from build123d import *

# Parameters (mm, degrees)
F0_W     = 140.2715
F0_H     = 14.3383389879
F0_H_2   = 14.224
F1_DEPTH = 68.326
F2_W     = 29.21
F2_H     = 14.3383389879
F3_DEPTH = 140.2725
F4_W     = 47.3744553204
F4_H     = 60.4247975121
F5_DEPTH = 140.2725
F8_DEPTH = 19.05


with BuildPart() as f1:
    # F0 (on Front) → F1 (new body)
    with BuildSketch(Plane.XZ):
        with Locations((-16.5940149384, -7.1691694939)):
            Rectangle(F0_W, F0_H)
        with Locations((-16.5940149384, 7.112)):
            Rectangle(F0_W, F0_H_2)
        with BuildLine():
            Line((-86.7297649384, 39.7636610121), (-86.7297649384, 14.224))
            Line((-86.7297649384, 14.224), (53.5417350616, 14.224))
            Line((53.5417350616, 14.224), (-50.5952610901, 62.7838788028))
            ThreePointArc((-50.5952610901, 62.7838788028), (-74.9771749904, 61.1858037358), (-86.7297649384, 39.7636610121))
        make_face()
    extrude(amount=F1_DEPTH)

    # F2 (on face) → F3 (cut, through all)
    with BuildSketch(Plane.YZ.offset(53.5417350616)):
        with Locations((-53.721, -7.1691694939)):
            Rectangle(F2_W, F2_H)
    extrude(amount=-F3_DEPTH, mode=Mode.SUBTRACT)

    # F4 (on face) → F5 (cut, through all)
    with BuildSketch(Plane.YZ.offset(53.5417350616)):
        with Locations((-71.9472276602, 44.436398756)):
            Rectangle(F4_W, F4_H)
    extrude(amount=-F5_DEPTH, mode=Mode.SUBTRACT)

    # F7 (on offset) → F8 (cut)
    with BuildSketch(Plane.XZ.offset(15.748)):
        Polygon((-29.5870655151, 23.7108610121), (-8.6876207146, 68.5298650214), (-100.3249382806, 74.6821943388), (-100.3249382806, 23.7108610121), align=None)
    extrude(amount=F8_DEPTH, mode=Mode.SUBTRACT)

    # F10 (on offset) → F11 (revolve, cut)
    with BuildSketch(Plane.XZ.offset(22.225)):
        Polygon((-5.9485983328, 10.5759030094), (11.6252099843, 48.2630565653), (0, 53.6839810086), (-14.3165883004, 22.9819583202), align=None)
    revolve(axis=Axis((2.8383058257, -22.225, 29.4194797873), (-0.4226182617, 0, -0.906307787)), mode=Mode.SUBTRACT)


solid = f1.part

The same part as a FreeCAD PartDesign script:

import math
import FreeCAD as App
import Part
import Sketcher

V = App.Vector
Q = App.Units.Quantity

doc = App.newDocument("Part")
body = doc.addObject("PartDesign::Body", "Body")

# Sketch on XZ plane
sketch1 = body.newObject("Sketcher::SketchObject", "Sketch")
sketch1.AttachmentSupport = (doc.getObject("XZ_Plane"), [""])
sketch1.MapMode = "FlatFace"
sketch1.addGeometry([
    Part.LineSegment(V(-87, -14, 0), V(54, -14, 0)),  # 0
    Part.LineSegment(V(54, -14, 0), V(54, 14, 0)),  # 1
    Part.LineSegment(V(54, 14, 0), V(-51, 63, 0)),  # 2
    Part.ArcOfCircle(Part.Circle(V(-61, 40, 0), V(0, 0, 1), 25), math.radians(65), math.radians(180)),  # 3
    Part.LineSegment(V(-87, 40, 0), V(-87, -14, 0)),  # 4
], False)
sketch1.addConstraint([
    Sketcher.Constraint("Coincident", 0, 2, 1, 1),
    Sketcher.Constraint("Coincident", 1, 2, 2, 1),
    Sketcher.Constraint("Tangent", 2, 2, 3, 1),
    Sketcher.Constraint("Tangent", 3, 2, 4, 1),
    Sketcher.Constraint("Coincident", 4, 2, 0, 1),
    Sketcher.Constraint("Horizontal", 0),
    Sketcher.Constraint("Vertical", 1),
    Sketcher.Constraint("Vertical", 4),
    Sketcher.Constraint("Radius", 3, Q("1 in")),
    Sketcher.Constraint("Angle", 2, Q("155 deg")),
    Sketcher.Constraint("DistanceY", 4, 2, 4, 1, Q("2.13 in")),
    Sketcher.Constraint("DistanceY", -1, 1, 1, 2, Q("0.56 in")),
    Sketcher.Constraint("DistanceX", 0, 1, 0, 2, Q("5.5225 in")),
    Sketcher.Constraint("DistanceX", 2, 2, -1, 1, Q("50.595261 mm")),
])
pad1 = body.newObject("PartDesign::Pad", "Pad")
pad1.Profile = sketch1
pad1.Length = Q("2.69 in")

# Sketch on YZ plane
sketch2 = body.newObject("Sketcher::SketchObject", "Sketch001")
sketch2.AttachmentSupport = (doc.getObject("YZ_Plane"), [""])
sketch2.MapMode = "FlatFace"
sketch2.AttachmentOffset = App.Placement(V(0, 0, 53.541735), App.Rotation())
sketch2.addGeometry([
    Part.LineSegment(V(-68, 0, 0), V(-68, -14, 0)),
    Part.LineSegment(V(-68, -14, 0), V(-39, -14, 0)),
    Part.LineSegment(V(-39, -14, 0), V(-39, 0, 0)),
    Part.LineSegment(V(-39, 0, 0), V(-68, 0, 0)),
], False)
sketch2.addConstraint([
    Sketcher.Constraint("Coincident", 0, 2, 1, 1),
    Sketcher.Constraint("Coincident", 1, 2, 2, 1),
    Sketcher.Constraint("Coincident", 2, 2, 3, 1),
    Sketcher.Constraint("Coincident", 3, 2, 0, 1),
    Sketcher.Constraint("Vertical", 0),
    Sketcher.Constraint("Horizontal", 1),
    Sketcher.Constraint("Vertical", 2),
    Sketcher.Constraint("Horizontal", 3),
    Sketcher.Constraint("PointOnObject", 2, 2, -1),
    Sketcher.Constraint("DistanceX", 1, 1, 1, 2, Q("1.15 in")),
    Sketcher.Constraint("DistanceX", 0, 2, -1, 1, Q("2.69 in")),
    Sketcher.Constraint("DistanceY", 0, 2, 0, 1, Q("14.338339 mm")),
])
pocket1 = body.newObject("PartDesign::Pocket", "Pocket")
pocket1.Profile = sketch2
pocket1.Type = "ThroughAll"

# Sketch on YZ plane
sketch3 = body.newObject("Sketcher::SketchObject", "Sketch002")
sketch3.AttachmentSupport = (doc.getObject("YZ_Plane"), [""])
sketch3.MapMode = "FlatFace"
sketch3.AttachmentOffset = App.Placement(V(0, 0, 53.541735), App.Rotation())
sketch3.addGeometry([
    Part.LineSegment(V(-96, 75, 0), V(-96, 14, 0)),
    Part.LineSegment(V(-96, 14, 0), V(-48, 14, 0)),
    Part.LineSegment(V(-48, 14, 0), V(-48, 75, 0)),
    Part.LineSegment(V(-48, 75, 0), V(-96, 75, 0)),
], False)
sketch3.addConstraint([
    Sketcher.Constraint("Coincident", 0, 2, 1, 1),
    Sketcher.Constraint("Coincident", 1, 2, 2, 1),
    Sketcher.Constraint("Coincident", 2, 2, 3, 1),
    Sketcher.Constraint("Coincident", 3, 2, 0, 1),
    Sketcher.Constraint("Vertical", 0),
    Sketcher.Constraint("Horizontal", 1),
    Sketcher.Constraint("Vertical", 2),
    Sketcher.Constraint("Horizontal", 3),
    Sketcher.Constraint("DistanceX", 1, 2, -1, 1, Q("1.9 in")),
    Sketcher.Constraint("DistanceY", -1, 1, 0, 2, Q("0.56 in")),
    Sketcher.Constraint("DistanceX", 1, 1, 1, 2, Q("47.374455 mm")),
    Sketcher.Constraint("DistanceY", 0, 2, 0, 1, Q("60.424798 mm")),
])
pocket2 = body.newObject("PartDesign::Pocket", "Pocket001")
pocket2.Profile = sketch3
pocket2.Type = "ThroughAll"

# Sketch on XZ plane
sketch4 = body.newObject("Sketcher::SketchObject", "Sketch003")
sketch4.AttachmentSupport = (doc.getObject("XZ_Plane"), [""])
sketch4.MapMode = "FlatFace"
sketch4.AttachmentOffset = App.Placement(V(0, 0, 0.62 * 25.4), App.Rotation())
sketch4.addGeometry([
    Part.LineSegment(V(-30, 24, 0), V(-9, 69, 0)),
    Part.LineSegment(V(-9, 69, 0), V(-100, 75, 0)),
    Part.LineSegment(V(-100, 75, 0), V(-100, 24, 0)),
    Part.LineSegment(V(-100, 24, 0), V(-30, 24, 0)),
], False)
sketch4.addConstraint([
    Sketcher.Constraint("Coincident", 0, 2, 1, 1),
    Sketcher.Constraint("Coincident", 1, 2, 2, 1),
    Sketcher.Constraint("Coincident", 2, 2, 3, 1),
    Sketcher.Constraint("Coincident", 3, 2, 0, 1),
    Sketcher.Constraint("Vertical", 2),
    Sketcher.Constraint("Horizontal", 3),
    Sketcher.Constraint("Angle", 0, Q("65 deg")),
    Sketcher.Constraint("Distance", 0, Q("49.452299 mm")),
    Sketcher.Constraint("DistanceX", 3, 1, 3, 2, Q("70.737873 mm")),
    Sketcher.Constraint("DistanceY", 2, 2, 2, 1, Q("50.971333 mm")),
    Sketcher.Constraint("DistanceX", 0, 2, -1, 1, Q("8.687621 mm")),
    Sketcher.Constraint("DistanceY", -1, 1, 2, 2, Q("23.710861 mm")),
])
pocket3 = body.newObject("PartDesign::Pocket", "Pocket002")
pocket3.Profile = sketch4
pocket3.Length = Q("0.75 in")
pocket3.Reversed = True

# Sketch on XZ plane
sketch5 = body.newObject("Sketcher::SketchObject", "Sketch004")
sketch5.AttachmentSupport = (doc.getObject("XZ_Plane"), [""])
sketch5.MapMode = "FlatFace"
sketch5.AttachmentOffset = App.Placement(V(0, 0, 0.875 * 25.4), App.Rotation())
sketch5.addGeometry([
    Part.LineSegment(V(-6, 11, 0), V(12, 48, 0)),
    Part.LineSegment(V(12, 48, 0), V(0, 54, 0)),
    Part.LineSegment(V(0, 54, 0), V(-14, 23, 0)),
    Part.LineSegment(V(-14, 23, 0), V(-6, 11, 0)),
], False)
sketch5.addGeometry(Part.LineSegment(V(12, 48, 0), V(-6, 11, 0)), True)  # axis
sketch5.addConstraint([
    Sketcher.Constraint("Coincident", 0, 2, 1, 1),
    Sketcher.Constraint("Coincident", 1, 2, 2, 1),
    Sketcher.Constraint("Coincident", 2, 2, 3, 1),
    Sketcher.Constraint("Coincident", 3, 2, 0, 1),
    Sketcher.Constraint("Coincident", 4, 1, 0, 2),
    Sketcher.Constraint("Coincident", 4, 2, 3, 2),
    Sketcher.Constraint("PointOnObject", 1, 2, -2),
    Sketcher.Constraint("Perpendicular", 0, 1),
    Sketcher.Constraint("Perpendicular", 1, 2),
    Sketcher.Constraint("Angle", 0, Q("65 deg")),
    Sketcher.Constraint("Angle", 3, Q("-56 deg")),
    Sketcher.Constraint("Distance", 1, Q("0.505 in")),
    Sketcher.Constraint("DistanceX", 3, 2, -1, 1, Q("5.948598 mm")),
    Sketcher.Constraint("DistanceY", -1, 1, 1, 2, Q("53.683981 mm")),
])
groove = body.newObject("PartDesign::Groove", "Groove")
groove.Profile = sketch5
groove.ReferenceAxis = (sketch5, ["Axis0"])
groove.Angle = 360

doc.recompute()
